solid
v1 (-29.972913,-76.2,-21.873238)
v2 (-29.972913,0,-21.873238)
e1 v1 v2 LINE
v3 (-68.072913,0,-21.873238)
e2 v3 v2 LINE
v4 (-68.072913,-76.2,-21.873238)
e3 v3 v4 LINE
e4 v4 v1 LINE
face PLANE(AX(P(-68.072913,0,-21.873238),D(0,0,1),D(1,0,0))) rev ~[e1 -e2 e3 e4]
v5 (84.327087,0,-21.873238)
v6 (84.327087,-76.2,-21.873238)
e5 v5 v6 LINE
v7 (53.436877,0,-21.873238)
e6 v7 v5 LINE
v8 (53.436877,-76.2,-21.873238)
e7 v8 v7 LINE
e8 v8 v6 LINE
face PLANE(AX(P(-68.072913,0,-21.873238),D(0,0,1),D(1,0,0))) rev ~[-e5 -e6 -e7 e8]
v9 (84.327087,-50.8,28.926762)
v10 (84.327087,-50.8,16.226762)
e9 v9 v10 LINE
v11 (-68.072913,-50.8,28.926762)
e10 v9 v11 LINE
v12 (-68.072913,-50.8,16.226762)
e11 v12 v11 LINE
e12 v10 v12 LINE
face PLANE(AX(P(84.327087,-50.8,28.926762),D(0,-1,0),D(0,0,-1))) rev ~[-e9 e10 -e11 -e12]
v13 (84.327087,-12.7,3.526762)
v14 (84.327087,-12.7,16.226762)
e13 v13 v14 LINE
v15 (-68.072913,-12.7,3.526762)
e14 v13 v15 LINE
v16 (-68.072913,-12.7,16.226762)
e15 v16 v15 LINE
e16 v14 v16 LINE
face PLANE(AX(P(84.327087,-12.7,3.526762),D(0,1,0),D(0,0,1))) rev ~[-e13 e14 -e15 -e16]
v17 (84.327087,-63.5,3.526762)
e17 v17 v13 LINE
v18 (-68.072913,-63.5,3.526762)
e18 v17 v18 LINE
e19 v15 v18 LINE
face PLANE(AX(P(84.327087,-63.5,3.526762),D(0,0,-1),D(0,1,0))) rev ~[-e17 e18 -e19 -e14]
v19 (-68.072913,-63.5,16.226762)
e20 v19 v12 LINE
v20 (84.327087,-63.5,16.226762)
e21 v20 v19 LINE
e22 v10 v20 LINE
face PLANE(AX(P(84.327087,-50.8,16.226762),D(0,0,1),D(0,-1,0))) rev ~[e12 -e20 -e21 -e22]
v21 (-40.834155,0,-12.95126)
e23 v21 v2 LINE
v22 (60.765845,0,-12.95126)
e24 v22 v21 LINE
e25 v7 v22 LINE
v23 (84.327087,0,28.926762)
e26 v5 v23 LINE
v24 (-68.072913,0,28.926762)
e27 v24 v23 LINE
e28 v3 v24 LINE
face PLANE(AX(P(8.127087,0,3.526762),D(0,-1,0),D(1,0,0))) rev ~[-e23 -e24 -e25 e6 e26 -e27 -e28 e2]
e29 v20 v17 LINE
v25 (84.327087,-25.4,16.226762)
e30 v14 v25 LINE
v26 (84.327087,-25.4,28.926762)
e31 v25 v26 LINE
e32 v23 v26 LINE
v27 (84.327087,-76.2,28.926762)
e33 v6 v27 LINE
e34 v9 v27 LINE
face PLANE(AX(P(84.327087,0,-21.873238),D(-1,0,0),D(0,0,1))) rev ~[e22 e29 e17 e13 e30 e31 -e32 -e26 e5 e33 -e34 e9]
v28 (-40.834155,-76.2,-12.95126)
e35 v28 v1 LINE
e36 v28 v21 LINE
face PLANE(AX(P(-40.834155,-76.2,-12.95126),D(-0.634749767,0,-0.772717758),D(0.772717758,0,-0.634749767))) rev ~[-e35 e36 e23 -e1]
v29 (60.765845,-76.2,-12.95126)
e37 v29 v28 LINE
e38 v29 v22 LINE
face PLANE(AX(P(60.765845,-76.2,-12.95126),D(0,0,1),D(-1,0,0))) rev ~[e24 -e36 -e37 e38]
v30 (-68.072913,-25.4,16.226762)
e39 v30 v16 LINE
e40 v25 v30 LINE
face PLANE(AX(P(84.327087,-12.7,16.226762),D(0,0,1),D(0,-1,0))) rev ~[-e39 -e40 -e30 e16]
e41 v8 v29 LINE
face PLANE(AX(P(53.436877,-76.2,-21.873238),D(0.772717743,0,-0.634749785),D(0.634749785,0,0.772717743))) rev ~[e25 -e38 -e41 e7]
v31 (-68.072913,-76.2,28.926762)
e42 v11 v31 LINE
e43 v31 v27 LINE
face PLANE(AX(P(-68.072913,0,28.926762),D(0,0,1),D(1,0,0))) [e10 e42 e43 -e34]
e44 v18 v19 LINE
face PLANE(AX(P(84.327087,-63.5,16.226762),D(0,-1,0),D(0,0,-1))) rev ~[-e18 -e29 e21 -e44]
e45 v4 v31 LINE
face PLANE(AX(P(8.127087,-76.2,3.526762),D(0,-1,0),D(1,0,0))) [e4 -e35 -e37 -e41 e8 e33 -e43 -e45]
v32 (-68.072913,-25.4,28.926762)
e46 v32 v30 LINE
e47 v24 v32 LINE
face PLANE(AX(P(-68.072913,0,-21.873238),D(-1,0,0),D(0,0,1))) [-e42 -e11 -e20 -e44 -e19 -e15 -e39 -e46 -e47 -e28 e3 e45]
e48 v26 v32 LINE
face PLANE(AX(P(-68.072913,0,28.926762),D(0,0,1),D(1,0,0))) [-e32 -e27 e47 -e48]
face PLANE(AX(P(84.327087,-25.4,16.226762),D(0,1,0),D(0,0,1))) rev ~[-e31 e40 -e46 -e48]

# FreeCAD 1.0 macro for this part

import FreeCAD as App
import Part
import Sketcher
Q = App.Units.Quantity

doc = App.newDocument("Part")
params = doc.addObject("Spreadsheet::Sheet", "Params")
for row, (alias, value) in enumerate([
    ("sketch1_width", "6 in"),
    ("sketch1_height", "2 in"),
    ("pad1_length", "3 in"),
    ("sketch2_width", "4 in"),
    ("sketch3_width", "1 in"),
    ("sketch3_width2", "2 in"),
], start=1):
    params.set(f"A{row}", alias)
    params.set(f"B{row}", "=" + value)
    params.setAlias(f"B{row}", alias)

body = doc.addObject("PartDesign::Body", "Body")

# Sketch on XZ plane
sketch1 = body.newObject("Sketcher::SketchObject", "Sketch")
sketch1.AttachmentSupport = (doc.getObject("XZ_Plane"), [""])
sketch1.MapMode = "FlatFace"
sketch1.addGeometry([
    Part.LineSegment(App.Vector(-68.072913, 28.926762, 0), App.Vector(-68.072913, -21.873238, 0)),
    Part.LineSegment(App.Vector(-68.072913, -21.873238, 0), App.Vector(84.327087, -21.873238, 0)),
    Part.LineSegment(App.Vector(84.327087, -21.873238, 0), App.Vector(84.327087, 28.926762, 0)),
    Part.LineSegment(App.Vector(84.327087, 28.926762, 0), App.Vector(-68.072913, 28.926762, 0)),
], False)
sketch1.addConstraint([
    Sketcher.Constraint("Coincident", 0, 2, 1, 1),
    Sketcher.Constraint("Coincident", 1, 2, 2, 1),
    Sketcher.Constraint("Coincident", 2, 2, 3, 1),
    Sketcher.Constraint("Coincident", 3, 2, 0, 1),
    Sketcher.Constraint("Vertical", 0),
    Sketcher.Constraint("Horizontal", 1),
    Sketcher.Constraint("Vertical", 2),
    Sketcher.Constraint("Horizontal", 3),
    Sketcher.Constraint("DistanceX", 1, 1, 1, 2, Q("6 in")),
    Sketcher.Constraint("DistanceY", 0, 2, 0, 1, Q("2 in")),
    Sketcher.Constraint("DistanceY", 0, 2, -1, 1, 21.873238),
    Sketcher.Constraint("DistanceX", 0, 2, -1, 1, 68.072913),
])
sketch1.setExpression("Constraints[8]", "Params.sketch1_width")
sketch1.setExpression("Constraints[9]", "Params.sketch1_height")
pad1 = body.newObject("PartDesign::Pad", "Pad")
pad1.Profile = sketch1
pad1.setExpression("Length", "Params.pad1_length")

# Sketch on XZ plane
sketch2 = body.newObject("Sketcher::SketchObject", "Sketch001")
sketch2.AttachmentSupport = (doc.getObject("XZ_Plane"), [""])
sketch2.MapMode = "FlatFace"
sketch2.AttachmentOffset = App.Placement(App.Vector(0, 0, 3 * 25.4), App.Rotation())
sketch2.addGeometry([
    Part.LineSegment(App.Vector(-40.834155, -12.95126, 0), App.Vector(-29.972913, -21.873238, 0)),
    Part.LineSegment(App.Vector(-29.972913, -21.873238, 0), App.Vector(53.436877, -21.873238, 0)),
    Part.LineSegment(App.Vector(53.436877, -21.873238, 0), App.Vector(60.765845, -12.95126, 0)),
    Part.LineSegment(App.Vector(60.765845, -12.95126, 0), App.Vector(-40.834155, -12.95126, 0)),
], False)
sketch2.addConstraint([
    Sketcher.Constraint("Coincident", 0, 2, 1, 1),
    Sketcher.Constraint("Coincident", 1, 2, 2, 1),
    Sketcher.Constraint("Coincident", 2, 2, 3, 1),
    Sketcher.Constraint("Coincident", 3, 2, 0, 1),
    Sketcher.Constraint("Horizontal", 1),
    Sketcher.Constraint("Horizontal", 3),
    Sketcher.Constraint("Perpendicular", 0, 2),
    Sketcher.Constraint("DistanceX", 3, 2, 3, 1, Q("4 in")),
    Sketcher.Constraint("Distance", 0, 14.055898),
    Sketcher.Constraint("DistanceX", 1, 1, 1, 2, 83.40979),
    Sketcher.Constraint("DistanceY", 0, 2, -1, 1, 21.873238),
    Sketcher.Constraint("DistanceX", 0, 2, -1, 1, 29.972913),
])
sketch2.setExpression("Constraints[7]", "Params.sketch2_width")
pocket1 = body.newObject("PartDesign::Pocket", "Pocket")
pocket1.Profile = sketch2
pocket1.Type = "ThroughAll"

# Sketch on YZ plane
sketch3 = body.newObject("Sketcher::SketchObject", "Sketch002")
sketch3.AttachmentSupport = (doc.getObject("YZ_Plane"), [""])
sketch3.MapMode = "FlatFace"
sketch3.AttachmentOffset = App.Placement(App.Vector(0, 0, 84.327087), App.Rotation())
sketch3.addGeometry([
    Part.LineSegment(App.Vector(-25.4, 28.926762, 0), App.Vector(-50.8, 28.926762, 0)),  # 0
    Part.LineSegment(App.Vector(-50.8, 28.926762, 0), App.Vector(-50.8, 16.226762, 0)),  # 1
    Part.LineSegment(App.Vector(-50.8, 16.226762, 0), App.Vector(-63.5, 16.226762, 0)),  # 2
    Part.LineSegment(App.Vector(-63.5, 16.226762, 0), App.Vector(-63.5, 3.526762, 0)),  # 3
    Part.LineSegment(App.Vector(-63.5, 3.526762, 0), App.Vector(-12.7, 3.526762, 0)),  # 4
    Part.LineSegment(App.Vector(-12.7, 3.526762, 0), App.Vector(-12.7, 16.226762, 0)),  # 5
    Part.LineSegment(App.Vector(-12.7, 16.226762, 0), App.Vector(-25.4, 16.226762, 0)),  # 6
    Part.LineSegment(App.Vector(-25.4, 16.226762, 0), App.Vector(-25.4, 28.926762, 0)),  # 7
], False)
sketch3.addConstraint([
    Sketcher.Constraint("Coincident", 0, 2, 1, 1),
    Sketcher.Constraint("Coincident", 1, 2, 2, 1),
    Sketcher.Constraint("Coincident", 2, 2, 3, 1),
    Sketcher.Constraint("Coincident", 3, 2, 4, 1),
    Sketcher.Constraint("Coincident", 4, 2, 5, 1),
    Sketcher.Constraint("Coincident", 5, 2, 6, 1),
    Sketcher.Constraint("Coincident", 6, 2, 7, 1),
    Sketcher.Constraint("Coincident", 7, 2, 0, 1),
    Sketcher.Constraint("Horizontal", 0),
    Sketcher.Constraint("Vertical", 1),
    Sketcher.Constraint("Horizontal", 2),
    Sketcher.Constraint("Vertical", 3),
    Sketcher.Constraint("Horizontal", 4),
    Sketcher.Constraint("Vertical", 5),
    Sketcher.Constraint("Horizontal", 6),
    Sketcher.Constraint("Vertical", 7),
    Sketcher.Constraint("Horizontal", 2, 2, 5, 2),
    Sketcher.Constraint("Equal", 2, 6),
    Sketcher.Constraint("Equal", 6, 1),
    Sketcher.Constraint("Equal", 1, 3),
    Sketcher.Constraint("DistanceX", 0, 2, 0, 1, Q("1 in")),
    Sketcher.Constraint("DistanceX", 4, 1, 4, 2, Q("2 in")),
    Sketcher.Constraint("DistanceX", 0, 2, -1, 1, Q("2 in")),
    Sketcher.Constraint("DistanceY", -1, 1, 0, 2, 28.926762),
])
sketch3.setExpression("Constraints[20]", "Params.sketch3_width")
sketch3.setExpression("Constraints[21]", "Params.sketch3_width2")
pocket2 = body.newObject("PartDesign::Pocket", "Pocket001")
pocket2.Profile = sketch3
pocket2.Type = "ThroughAll"

doc.recompute()
